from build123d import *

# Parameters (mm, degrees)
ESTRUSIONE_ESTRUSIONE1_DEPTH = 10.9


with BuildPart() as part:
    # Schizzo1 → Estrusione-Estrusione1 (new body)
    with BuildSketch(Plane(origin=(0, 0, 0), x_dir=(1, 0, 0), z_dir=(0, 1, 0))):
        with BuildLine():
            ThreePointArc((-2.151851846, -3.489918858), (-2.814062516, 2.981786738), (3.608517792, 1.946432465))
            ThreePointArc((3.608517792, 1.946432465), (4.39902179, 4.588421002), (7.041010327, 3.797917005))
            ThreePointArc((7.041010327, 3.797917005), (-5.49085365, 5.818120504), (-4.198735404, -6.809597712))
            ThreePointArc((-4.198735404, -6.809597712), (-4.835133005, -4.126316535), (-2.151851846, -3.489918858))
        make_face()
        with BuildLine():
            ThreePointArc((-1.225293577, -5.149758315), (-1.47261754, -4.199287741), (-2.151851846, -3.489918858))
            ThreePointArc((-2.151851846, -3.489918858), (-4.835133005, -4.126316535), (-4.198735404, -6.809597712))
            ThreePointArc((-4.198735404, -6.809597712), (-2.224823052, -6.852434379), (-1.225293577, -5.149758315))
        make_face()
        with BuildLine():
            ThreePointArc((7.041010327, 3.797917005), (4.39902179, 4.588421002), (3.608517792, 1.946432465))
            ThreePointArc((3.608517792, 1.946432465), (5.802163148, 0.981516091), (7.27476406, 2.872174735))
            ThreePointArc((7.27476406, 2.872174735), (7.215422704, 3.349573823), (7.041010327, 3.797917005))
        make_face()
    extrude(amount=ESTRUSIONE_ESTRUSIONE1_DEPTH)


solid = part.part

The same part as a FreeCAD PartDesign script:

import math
import FreeCAD as App
import Part
import Sketcher

V = App.Vector

doc = App.newDocument("Part")
params = doc.addObject("Spreadsheet::Sheet", "Params")
for row, (alias, value) in enumerate([
    ("sketch1_radius", "8 mm"),
    ("sketch1_radius2", "4.1 mm"),
    ("pad1_length", "10.9 mm"),
], start=1):
    params.set(f"A{row}", alias)
    params.set(f"B{row}", "=" + value)
    params.setAlias(f"B{row}", alias)

body = doc.addObject("PartDesign::Body", "Body")

# Sketch on XZ plane
sketch1 = body.newObject("Sketcher::SketchObject", "Sketch")
sketch1.AttachmentSupport = (doc.getObject("XZ_Plane"), [""])
sketch1.MapMode = "FlatFace"
sketch1.addGeometry([
    Part.ArcOfCircle(Part.Circle(V(0, 0, 0), V(0, 0, 1), 4.1), math.radians(122), math.radians(332)),  # 0
    Part.ArcOfCircle(Part.Circle(V(5.3, -2.9, 0), V(0, 0, 1), 2), math.radians(0), math.radians(152)),  # 1
    Part.ArcOfCircle(Part.Circle(V(5.3, -2.9, 0), V(0, 0, 1), 2), math.radians(-28), math.radians(0)),  # 2
    Part.ArcOfCircle(Part.Circle(V(0, 0, 0), V(0, 0, 1), 8), math.radians(122), math.radians(332)),  # 3
    Part.ArcOfCircle(Part.Circle(V(-3.2, 5.1, 0), V(0, 0, 1), 1.9), math.radians(0), math.radians(122)),  # 4
    Part.ArcOfCircle(Part.Circle(V(-3.2, 5.1, 0), V(0, 0, 1), 2), math.radians(-58), math.radians(0)),  # 5
], False)
sketch1.addConstraint([
    Sketcher.Constraint("Tangent", 0, 2, 1, 2),
    Sketcher.Constraint("Tangent", 1, 1, 2, 2),
    Sketcher.Constraint("Tangent", 2, 1, 3, 2),
    Sketcher.Constraint("Tangent", 3, 1, 4, 2),
    Sketcher.Constraint("Tangent", 4, 1, 5, 2),
    Sketcher.Constraint("Tangent", 5, 1, 0, 1),
    Sketcher.Constraint("Coincident", 0, 3, -1, 1),
    Sketcher.Constraint("Coincident", 3, 3, -1, 1),
    Sketcher.Constraint("Equal", 1, 2),
    Sketcher.Constraint("Equal", 2, 4),
    Sketcher.Constraint("Horizontal", 2, 3, 1, 1),
    Sketcher.Constraint("Horizontal", 5, 3, 4, 1),
    Sketcher.Constraint("Radius", 3, 8.0),
    Sketcher.Constraint("Radius", 0, 4.1),
    Sketcher.Constraint("DistanceY", -1, 1, 4, 3, 5.149758),
    Sketcher.Constraint("DistanceX", -1, 1, 2, 1, 7.04101),
])
sketch1.setExpression("Constraints[12]", "Params.sketch1_radius")
sketch1.setExpression("Constraints[13]", "Params.sketch1_radius2")
pad1 = body.newObject("PartDesign::Pad", "Pad")
pad1.Profile = sketch1
pad1.setExpression("Length", "Params.pad1_length")
pad1.Reversed = True

doc.recompute()
